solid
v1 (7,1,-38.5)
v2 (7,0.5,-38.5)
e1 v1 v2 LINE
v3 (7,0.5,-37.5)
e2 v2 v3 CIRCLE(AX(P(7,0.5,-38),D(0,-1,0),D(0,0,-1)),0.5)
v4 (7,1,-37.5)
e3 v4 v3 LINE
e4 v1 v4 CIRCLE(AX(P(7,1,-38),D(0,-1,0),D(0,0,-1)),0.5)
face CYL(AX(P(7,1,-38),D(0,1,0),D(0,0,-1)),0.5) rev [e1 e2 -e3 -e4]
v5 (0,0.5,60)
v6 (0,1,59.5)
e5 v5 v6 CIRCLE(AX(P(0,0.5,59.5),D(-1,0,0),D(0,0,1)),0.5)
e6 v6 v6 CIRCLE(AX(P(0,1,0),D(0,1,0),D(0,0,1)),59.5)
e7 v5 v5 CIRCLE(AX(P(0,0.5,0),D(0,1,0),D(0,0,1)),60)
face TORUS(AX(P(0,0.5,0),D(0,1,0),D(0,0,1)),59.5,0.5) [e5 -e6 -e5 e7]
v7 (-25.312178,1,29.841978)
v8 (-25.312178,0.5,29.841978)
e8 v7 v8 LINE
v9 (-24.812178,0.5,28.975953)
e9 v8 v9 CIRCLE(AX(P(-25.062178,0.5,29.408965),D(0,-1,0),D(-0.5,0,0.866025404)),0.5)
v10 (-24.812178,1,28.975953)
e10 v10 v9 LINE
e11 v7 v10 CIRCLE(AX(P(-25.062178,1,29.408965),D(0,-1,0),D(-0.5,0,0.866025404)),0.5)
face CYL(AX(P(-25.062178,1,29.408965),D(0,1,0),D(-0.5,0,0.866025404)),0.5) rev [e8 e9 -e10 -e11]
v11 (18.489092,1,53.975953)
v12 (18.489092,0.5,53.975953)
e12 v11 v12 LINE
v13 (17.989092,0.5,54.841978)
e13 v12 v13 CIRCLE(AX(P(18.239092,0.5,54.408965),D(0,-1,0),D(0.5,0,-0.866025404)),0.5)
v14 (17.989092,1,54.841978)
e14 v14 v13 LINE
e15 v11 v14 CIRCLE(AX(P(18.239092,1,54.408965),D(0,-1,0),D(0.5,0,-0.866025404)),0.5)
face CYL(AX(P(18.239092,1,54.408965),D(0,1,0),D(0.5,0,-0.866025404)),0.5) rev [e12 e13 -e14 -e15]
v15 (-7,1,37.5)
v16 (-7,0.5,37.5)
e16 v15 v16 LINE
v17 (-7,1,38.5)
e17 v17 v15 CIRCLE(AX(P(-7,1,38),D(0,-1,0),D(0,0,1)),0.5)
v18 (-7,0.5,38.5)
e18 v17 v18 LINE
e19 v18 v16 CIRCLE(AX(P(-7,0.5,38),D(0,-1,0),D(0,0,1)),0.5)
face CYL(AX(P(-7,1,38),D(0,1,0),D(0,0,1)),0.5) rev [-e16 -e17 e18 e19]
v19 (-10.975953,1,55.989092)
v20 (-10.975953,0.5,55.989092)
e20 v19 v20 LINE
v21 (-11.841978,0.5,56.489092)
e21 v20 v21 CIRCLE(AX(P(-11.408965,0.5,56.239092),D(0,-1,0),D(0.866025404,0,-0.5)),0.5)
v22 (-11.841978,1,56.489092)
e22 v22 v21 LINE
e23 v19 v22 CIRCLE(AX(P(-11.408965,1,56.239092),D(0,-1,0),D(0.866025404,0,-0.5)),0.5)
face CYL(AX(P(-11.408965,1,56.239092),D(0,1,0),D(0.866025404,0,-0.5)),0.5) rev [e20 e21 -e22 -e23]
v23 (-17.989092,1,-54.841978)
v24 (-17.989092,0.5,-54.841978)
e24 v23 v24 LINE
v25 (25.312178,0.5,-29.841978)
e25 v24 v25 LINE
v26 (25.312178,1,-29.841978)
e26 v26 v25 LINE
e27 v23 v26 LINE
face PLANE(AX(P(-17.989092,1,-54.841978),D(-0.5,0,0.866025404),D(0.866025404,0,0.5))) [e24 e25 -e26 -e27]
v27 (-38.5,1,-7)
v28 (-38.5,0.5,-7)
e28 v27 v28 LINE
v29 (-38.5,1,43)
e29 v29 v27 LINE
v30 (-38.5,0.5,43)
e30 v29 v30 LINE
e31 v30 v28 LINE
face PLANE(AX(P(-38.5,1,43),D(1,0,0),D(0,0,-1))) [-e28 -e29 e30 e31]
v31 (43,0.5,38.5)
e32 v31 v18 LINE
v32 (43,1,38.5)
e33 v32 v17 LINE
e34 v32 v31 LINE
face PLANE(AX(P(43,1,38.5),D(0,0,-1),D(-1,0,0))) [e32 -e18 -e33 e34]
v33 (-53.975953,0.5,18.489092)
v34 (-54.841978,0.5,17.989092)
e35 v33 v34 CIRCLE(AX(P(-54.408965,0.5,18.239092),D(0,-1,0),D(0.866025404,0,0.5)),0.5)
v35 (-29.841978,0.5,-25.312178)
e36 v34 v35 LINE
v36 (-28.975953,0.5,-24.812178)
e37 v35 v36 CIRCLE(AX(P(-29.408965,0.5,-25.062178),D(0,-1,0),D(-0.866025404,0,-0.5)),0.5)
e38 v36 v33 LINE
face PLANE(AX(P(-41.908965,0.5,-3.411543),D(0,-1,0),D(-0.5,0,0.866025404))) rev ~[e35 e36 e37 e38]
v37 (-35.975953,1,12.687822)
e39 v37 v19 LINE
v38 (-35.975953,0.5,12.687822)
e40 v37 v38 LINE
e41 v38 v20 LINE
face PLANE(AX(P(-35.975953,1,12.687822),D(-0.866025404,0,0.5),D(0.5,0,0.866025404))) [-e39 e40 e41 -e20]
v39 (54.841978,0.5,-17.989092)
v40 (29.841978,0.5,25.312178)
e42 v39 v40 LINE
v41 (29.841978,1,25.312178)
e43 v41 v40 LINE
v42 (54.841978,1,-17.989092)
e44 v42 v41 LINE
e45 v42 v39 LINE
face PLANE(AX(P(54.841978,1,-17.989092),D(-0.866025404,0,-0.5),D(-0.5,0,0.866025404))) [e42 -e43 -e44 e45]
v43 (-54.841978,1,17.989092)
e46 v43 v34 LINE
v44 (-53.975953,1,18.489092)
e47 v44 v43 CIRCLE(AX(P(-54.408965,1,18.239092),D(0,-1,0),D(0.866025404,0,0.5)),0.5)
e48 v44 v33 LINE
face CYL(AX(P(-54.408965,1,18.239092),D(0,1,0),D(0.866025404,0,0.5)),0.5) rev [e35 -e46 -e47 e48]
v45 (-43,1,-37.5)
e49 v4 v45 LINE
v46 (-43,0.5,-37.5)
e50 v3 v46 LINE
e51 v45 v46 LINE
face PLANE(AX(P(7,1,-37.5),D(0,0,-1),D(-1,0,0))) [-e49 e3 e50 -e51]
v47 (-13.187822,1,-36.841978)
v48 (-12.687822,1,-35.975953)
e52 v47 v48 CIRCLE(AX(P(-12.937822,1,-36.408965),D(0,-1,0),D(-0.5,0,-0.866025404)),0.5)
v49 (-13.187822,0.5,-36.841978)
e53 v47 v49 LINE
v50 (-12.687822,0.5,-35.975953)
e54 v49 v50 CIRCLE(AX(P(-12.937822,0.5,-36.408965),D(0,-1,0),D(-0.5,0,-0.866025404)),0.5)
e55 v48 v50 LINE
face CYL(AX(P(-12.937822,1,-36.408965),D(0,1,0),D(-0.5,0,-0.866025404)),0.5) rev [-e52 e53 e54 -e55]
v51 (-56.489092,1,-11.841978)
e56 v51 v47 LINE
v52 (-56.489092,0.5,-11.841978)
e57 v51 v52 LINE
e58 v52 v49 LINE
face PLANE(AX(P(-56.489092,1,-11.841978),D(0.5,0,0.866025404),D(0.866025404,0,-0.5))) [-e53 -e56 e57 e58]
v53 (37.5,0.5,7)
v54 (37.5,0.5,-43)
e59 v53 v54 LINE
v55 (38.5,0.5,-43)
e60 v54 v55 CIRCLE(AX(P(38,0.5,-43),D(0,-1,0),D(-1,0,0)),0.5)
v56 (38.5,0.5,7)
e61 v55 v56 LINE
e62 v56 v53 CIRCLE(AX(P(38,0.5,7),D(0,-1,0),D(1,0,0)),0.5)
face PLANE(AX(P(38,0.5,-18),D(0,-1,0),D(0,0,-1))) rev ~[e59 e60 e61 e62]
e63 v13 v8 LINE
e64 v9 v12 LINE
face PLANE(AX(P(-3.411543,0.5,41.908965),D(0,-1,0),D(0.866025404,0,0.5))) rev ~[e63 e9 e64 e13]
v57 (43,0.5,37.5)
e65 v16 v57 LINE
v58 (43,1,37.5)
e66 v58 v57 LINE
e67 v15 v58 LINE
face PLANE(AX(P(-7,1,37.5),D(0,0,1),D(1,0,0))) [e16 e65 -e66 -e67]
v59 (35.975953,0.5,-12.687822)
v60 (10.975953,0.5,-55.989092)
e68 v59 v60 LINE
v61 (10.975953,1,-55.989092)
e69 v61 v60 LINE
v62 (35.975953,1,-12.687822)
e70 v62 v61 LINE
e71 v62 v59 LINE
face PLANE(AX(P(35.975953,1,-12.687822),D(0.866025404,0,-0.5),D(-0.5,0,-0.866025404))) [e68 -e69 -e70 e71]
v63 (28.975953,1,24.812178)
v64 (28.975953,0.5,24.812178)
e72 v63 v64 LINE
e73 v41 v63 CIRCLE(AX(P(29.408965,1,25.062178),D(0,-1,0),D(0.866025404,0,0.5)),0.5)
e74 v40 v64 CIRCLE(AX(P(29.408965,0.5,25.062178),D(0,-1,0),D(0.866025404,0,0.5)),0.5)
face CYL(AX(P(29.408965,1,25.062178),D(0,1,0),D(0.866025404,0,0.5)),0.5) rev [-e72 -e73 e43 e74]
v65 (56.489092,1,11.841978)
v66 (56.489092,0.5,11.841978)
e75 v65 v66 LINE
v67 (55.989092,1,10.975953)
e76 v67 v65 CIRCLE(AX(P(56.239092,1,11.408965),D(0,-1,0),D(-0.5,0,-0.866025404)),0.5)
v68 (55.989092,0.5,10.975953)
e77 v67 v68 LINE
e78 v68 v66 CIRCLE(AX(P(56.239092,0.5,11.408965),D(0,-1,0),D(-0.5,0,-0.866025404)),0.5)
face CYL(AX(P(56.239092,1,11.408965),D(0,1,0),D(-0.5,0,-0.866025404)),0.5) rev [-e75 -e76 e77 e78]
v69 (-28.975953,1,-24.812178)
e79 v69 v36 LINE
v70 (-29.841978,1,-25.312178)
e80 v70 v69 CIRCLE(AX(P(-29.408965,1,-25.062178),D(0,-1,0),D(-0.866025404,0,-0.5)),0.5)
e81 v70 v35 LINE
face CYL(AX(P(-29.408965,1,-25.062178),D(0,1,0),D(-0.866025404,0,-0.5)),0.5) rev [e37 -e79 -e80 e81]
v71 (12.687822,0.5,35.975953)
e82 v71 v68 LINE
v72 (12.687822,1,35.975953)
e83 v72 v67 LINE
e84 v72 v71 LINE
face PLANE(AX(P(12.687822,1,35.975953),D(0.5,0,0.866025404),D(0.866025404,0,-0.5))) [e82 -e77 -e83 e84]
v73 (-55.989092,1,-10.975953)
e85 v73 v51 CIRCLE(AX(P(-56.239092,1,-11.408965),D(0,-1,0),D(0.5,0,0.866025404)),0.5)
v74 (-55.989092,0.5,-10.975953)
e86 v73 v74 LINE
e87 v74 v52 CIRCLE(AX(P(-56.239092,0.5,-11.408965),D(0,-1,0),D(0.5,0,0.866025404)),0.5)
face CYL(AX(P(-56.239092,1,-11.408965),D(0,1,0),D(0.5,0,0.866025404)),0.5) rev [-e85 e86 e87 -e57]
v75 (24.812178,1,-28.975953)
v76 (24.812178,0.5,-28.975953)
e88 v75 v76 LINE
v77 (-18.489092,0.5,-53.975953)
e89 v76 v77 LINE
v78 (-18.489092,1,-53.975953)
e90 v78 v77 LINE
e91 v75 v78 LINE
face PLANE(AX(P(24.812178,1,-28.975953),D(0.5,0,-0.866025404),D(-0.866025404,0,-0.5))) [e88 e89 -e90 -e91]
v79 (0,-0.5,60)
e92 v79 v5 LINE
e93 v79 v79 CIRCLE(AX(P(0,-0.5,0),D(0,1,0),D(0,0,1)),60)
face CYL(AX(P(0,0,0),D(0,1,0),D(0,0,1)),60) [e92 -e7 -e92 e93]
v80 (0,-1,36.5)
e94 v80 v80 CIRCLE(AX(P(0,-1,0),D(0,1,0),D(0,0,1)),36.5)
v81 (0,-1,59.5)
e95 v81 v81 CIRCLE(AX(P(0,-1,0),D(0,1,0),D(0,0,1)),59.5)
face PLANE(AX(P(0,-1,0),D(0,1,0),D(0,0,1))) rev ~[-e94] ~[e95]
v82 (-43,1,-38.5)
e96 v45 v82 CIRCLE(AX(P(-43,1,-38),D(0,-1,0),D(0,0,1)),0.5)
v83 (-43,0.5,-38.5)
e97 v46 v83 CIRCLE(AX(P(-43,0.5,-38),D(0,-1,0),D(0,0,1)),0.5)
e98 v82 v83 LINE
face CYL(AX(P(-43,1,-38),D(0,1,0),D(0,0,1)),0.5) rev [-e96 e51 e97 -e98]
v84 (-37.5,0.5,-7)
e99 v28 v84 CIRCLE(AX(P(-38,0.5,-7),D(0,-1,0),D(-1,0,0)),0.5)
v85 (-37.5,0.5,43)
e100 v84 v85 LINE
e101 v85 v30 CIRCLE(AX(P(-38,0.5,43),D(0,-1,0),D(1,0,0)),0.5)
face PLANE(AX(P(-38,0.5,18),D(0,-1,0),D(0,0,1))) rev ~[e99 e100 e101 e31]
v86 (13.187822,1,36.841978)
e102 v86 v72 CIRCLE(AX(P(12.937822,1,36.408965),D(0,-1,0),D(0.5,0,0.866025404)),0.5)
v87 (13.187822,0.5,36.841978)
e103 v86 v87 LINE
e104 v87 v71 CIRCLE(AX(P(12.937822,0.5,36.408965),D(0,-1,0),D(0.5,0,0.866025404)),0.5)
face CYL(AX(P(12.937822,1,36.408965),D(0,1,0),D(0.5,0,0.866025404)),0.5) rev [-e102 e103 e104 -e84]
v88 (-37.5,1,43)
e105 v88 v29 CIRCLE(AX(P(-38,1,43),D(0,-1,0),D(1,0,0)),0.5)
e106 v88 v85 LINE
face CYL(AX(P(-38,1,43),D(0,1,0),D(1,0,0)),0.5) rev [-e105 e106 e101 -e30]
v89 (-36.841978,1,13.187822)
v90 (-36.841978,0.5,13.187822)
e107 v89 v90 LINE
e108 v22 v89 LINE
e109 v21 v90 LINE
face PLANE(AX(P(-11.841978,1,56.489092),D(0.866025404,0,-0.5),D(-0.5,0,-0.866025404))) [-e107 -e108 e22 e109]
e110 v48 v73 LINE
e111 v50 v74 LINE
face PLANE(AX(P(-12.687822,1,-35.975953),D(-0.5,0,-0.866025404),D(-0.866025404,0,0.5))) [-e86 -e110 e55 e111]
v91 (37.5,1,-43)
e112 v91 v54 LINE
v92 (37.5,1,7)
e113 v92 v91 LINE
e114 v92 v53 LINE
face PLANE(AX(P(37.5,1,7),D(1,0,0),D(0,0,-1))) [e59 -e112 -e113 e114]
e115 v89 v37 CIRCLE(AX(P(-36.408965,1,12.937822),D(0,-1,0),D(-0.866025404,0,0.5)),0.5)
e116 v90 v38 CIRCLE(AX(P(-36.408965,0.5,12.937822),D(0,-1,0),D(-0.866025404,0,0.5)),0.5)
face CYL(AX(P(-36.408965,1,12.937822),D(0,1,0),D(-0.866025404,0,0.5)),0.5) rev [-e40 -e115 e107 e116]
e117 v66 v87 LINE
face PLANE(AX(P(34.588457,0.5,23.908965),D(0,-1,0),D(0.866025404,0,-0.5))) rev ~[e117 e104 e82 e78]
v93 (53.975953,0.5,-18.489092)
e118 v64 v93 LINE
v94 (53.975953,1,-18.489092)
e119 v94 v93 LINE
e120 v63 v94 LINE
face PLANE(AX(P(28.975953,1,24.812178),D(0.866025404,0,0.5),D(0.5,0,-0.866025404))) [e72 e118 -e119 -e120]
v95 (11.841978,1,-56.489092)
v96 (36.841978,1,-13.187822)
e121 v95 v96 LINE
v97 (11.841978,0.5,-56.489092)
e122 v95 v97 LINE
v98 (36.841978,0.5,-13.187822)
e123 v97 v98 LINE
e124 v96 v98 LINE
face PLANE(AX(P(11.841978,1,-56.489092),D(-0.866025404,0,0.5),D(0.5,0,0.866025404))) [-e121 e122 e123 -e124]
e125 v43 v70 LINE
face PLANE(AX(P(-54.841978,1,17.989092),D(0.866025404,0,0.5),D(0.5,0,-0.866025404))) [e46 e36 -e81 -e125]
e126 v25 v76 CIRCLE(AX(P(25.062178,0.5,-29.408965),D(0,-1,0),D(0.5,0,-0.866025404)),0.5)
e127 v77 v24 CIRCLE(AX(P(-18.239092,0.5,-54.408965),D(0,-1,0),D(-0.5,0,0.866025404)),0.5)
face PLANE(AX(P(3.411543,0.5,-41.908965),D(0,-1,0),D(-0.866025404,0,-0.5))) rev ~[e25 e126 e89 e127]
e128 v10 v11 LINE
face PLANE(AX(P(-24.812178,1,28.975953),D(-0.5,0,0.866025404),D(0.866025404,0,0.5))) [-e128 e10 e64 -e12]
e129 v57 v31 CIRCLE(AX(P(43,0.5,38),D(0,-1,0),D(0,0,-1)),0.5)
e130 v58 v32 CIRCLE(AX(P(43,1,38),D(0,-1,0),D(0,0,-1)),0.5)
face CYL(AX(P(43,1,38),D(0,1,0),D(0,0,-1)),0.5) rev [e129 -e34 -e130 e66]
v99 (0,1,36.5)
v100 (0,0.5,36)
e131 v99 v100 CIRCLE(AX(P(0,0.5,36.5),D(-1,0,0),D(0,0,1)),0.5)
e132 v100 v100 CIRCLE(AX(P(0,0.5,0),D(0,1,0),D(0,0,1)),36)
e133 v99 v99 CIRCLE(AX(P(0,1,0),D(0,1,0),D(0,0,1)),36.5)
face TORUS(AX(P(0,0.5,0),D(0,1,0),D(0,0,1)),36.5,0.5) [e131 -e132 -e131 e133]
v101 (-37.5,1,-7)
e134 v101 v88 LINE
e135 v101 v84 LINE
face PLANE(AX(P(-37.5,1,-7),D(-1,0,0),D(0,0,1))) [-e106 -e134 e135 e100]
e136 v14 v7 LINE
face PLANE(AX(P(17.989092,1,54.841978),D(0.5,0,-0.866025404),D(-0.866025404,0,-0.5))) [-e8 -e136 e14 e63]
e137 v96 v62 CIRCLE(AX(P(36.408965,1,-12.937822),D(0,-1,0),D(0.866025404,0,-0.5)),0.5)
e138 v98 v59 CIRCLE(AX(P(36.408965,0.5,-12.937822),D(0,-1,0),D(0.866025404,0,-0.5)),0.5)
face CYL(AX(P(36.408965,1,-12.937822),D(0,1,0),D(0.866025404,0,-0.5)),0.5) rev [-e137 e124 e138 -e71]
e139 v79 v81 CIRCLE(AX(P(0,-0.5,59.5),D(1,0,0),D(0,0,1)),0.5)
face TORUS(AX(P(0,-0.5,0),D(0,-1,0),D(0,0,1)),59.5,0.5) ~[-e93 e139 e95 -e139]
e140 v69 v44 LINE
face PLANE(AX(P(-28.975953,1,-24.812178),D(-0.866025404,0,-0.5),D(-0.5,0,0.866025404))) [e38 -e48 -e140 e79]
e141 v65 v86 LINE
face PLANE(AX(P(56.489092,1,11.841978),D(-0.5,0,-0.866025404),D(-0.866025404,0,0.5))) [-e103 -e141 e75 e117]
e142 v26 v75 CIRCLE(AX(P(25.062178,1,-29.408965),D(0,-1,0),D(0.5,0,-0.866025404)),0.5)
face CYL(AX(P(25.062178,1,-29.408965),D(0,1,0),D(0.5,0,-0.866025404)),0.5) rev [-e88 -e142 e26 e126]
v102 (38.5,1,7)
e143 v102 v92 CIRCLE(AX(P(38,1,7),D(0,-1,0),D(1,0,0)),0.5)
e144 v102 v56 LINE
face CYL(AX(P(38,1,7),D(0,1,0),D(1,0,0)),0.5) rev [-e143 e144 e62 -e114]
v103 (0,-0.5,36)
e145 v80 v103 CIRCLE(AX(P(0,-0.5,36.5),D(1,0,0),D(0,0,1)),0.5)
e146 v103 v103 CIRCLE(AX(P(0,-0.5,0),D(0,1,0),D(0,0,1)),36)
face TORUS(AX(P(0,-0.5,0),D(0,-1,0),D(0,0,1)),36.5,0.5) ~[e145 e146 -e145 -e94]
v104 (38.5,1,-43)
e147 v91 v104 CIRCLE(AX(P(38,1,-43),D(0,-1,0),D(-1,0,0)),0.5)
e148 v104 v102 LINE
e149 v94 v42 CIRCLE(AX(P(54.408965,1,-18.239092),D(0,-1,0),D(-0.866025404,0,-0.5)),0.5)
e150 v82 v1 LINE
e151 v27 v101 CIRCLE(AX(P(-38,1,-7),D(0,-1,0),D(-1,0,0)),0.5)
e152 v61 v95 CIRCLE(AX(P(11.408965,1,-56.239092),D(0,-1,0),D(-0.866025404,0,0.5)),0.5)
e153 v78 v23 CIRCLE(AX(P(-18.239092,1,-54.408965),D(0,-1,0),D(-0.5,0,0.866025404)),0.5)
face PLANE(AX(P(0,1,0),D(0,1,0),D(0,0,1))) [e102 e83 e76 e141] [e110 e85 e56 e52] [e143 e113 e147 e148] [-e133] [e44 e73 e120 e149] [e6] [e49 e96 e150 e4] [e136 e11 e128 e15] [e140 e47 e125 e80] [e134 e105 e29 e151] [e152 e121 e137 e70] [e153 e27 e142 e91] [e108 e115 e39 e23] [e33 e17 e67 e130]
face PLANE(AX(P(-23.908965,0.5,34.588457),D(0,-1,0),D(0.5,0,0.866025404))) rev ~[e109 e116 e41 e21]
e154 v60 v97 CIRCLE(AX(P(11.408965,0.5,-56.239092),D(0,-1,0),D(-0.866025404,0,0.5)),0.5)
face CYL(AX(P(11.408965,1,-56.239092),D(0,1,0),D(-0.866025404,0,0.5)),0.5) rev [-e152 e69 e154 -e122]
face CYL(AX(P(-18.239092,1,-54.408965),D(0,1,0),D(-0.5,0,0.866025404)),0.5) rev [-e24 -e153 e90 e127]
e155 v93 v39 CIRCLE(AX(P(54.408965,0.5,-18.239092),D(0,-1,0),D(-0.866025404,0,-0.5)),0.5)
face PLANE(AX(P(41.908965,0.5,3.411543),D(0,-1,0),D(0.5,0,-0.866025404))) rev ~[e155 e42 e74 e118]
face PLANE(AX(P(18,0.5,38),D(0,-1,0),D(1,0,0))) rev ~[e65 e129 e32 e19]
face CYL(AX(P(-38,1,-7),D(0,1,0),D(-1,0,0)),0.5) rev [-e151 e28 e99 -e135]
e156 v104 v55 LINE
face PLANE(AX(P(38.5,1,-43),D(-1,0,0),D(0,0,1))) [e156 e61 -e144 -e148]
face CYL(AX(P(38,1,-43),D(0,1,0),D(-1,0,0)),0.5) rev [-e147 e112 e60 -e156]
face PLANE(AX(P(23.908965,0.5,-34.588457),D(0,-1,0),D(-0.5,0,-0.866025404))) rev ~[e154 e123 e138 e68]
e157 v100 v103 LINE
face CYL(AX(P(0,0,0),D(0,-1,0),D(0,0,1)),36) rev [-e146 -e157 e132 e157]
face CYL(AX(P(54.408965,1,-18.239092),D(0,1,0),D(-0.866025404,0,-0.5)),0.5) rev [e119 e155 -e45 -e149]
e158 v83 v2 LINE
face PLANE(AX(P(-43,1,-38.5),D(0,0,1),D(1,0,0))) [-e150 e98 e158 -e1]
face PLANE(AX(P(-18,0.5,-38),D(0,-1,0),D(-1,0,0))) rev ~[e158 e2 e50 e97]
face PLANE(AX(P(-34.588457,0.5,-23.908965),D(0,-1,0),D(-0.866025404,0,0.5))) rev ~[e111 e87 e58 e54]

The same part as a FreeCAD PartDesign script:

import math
import FreeCAD as App
import Part
import Sketcher
from FreeCAD import Vector


def edges_at(feature, points):
    """Names of the edges that pass closest to the given points."""
    edges = feature.Shape.Edges
    near = lambda p: min(range(len(edges)), key=lambda i: edges[i].distToShape(Part.Vertex(*p))[0])
    return sorted({f"Edge{near(p) + 1}" for p in points})

doc = App.newDocument("Part")
body = doc.addObject("PartDesign::Body", "Body")

# Sketch on XZ plane
sketch1 = body.newObject("Sketcher::SketchObject", "Sketch")
sketch1.AttachmentSupport = (doc.getObject("XZ_Plane"), [""])
sketch1.MapMode = "FlatFace"
sketch1.addGeometry(Part.Circle(Vector(0, 0, 0), Vector(0, 0, 1), 60), False)
sketch1.addGeometry(Part.Circle(Vector(0, 0, 0), Vector(0, 0, 1), 36), False)
sketch1.addConstraint(Sketcher.Constraint("Coincident", 0, 3, -1, 1))
sketch1.addConstraint(Sketcher.Constraint("Coincident", 1, 3, -1, 1))
sketch1.addConstraint(Sketcher.Constraint("Diameter", 0, 120.0))
sketch1.addConstraint(Sketcher.Constraint("Diameter", 1, 72.0))
pad1 = body.newObject("PartDesign::Pad", "Pad")
pad1.Profile = sketch1
pad1.Length = 2
pad1.Midplane = True

# Sketch on XZ plane
sketch2 = body.newObject("Sketcher::SketchObject", "Sketch001")
sketch2.AttachmentSupport = (doc.getObject("XZ_Plane"), [""])
sketch2.MapMode = "FlatFace"
sketch2.AttachmentOffset = App.Placement(Vector(0, 0, -1), App.Rotation())
sketch2.addGeometry(Part.LineSegment(Vector(-43, -37.5, 0), Vector(7, -37.5, 0)), False)
sketch2.addGeometry(Part.ArcOfCircle(Part.Circle(Vector(7, -38, 0), Vector(0, 0, 1), 0.5), math.radians(-90), math.radians(90)), False)
sketch2.addGeometry(Part.LineSegment(Vector(7, -38.5, 0), Vector(-43, -38.5, 0)), False)
sketch2.addGeometry(Part.ArcOfCircle(Part.Circle(Vector(-43, -38, 0), Vector(0, 0, 1), 0.5), math.radians(90), math.radians(270)), False)
sketch2.addConstraint(Sketcher.Constraint("Tangent", 0, 2, 1, 2))
sketch2.addConstraint(Sketcher.Constraint("Tangent", 1, 1, 2, 1))
sketch2.addConstraint(Sketcher.Constraint("Tangent", 2, 2, 3, 2))
sketch2.addConstraint(Sketcher.Constraint("Tangent", 3, 1, 0, 1))
sketch2.addConstraint(Sketcher.Constraint("Horizontal", 0))
sketch2.addConstraint(Sketcher.Constraint("Horizontal", 2))
sketch2.addConstraint(Sketcher.Constraint("Radius", 1, 0.5))
sketch2.addConstraint(Sketcher.Constraint("DistanceX", 0, 1, 0, 2, 50.0))
sketch2.addConstraint(Sketcher.Constraint("DistanceX", -1, 1, 1, 3, 7.0))
sketch2.addConstraint(Sketcher.Constraint("DistanceY", 1, 3, -1, 1, 38.0))
pocket1 = body.newObject("PartDesign::Pocket", "Pocket")
pocket1.Profile = sketch2
pocket1.Length = 0.5
pocket1.Reversed = True
doc.recompute()

polarpattern = body.newObject("PartDesign::PolarPattern", "PolarPattern")
polarpattern.Originals = [pocket1]
polarpattern.Axis = (doc.getObject("Y_Axis"), [""])
polarpattern.Angle = 360
polarpattern.Occurrences = 12
body.Tip = polarpattern
doc.recompute()

fillet = body.newObject("PartDesign::Fillet", "Fillet")
fillet.Base = (polarpattern, edges_at(polarpattern, [
    (0, -1, -60),
    (0, 1, -60),
    (0, -1, -36),
    (0, 1, -36),
]))
fillet.Radius = 0.5

doc.recompute()
